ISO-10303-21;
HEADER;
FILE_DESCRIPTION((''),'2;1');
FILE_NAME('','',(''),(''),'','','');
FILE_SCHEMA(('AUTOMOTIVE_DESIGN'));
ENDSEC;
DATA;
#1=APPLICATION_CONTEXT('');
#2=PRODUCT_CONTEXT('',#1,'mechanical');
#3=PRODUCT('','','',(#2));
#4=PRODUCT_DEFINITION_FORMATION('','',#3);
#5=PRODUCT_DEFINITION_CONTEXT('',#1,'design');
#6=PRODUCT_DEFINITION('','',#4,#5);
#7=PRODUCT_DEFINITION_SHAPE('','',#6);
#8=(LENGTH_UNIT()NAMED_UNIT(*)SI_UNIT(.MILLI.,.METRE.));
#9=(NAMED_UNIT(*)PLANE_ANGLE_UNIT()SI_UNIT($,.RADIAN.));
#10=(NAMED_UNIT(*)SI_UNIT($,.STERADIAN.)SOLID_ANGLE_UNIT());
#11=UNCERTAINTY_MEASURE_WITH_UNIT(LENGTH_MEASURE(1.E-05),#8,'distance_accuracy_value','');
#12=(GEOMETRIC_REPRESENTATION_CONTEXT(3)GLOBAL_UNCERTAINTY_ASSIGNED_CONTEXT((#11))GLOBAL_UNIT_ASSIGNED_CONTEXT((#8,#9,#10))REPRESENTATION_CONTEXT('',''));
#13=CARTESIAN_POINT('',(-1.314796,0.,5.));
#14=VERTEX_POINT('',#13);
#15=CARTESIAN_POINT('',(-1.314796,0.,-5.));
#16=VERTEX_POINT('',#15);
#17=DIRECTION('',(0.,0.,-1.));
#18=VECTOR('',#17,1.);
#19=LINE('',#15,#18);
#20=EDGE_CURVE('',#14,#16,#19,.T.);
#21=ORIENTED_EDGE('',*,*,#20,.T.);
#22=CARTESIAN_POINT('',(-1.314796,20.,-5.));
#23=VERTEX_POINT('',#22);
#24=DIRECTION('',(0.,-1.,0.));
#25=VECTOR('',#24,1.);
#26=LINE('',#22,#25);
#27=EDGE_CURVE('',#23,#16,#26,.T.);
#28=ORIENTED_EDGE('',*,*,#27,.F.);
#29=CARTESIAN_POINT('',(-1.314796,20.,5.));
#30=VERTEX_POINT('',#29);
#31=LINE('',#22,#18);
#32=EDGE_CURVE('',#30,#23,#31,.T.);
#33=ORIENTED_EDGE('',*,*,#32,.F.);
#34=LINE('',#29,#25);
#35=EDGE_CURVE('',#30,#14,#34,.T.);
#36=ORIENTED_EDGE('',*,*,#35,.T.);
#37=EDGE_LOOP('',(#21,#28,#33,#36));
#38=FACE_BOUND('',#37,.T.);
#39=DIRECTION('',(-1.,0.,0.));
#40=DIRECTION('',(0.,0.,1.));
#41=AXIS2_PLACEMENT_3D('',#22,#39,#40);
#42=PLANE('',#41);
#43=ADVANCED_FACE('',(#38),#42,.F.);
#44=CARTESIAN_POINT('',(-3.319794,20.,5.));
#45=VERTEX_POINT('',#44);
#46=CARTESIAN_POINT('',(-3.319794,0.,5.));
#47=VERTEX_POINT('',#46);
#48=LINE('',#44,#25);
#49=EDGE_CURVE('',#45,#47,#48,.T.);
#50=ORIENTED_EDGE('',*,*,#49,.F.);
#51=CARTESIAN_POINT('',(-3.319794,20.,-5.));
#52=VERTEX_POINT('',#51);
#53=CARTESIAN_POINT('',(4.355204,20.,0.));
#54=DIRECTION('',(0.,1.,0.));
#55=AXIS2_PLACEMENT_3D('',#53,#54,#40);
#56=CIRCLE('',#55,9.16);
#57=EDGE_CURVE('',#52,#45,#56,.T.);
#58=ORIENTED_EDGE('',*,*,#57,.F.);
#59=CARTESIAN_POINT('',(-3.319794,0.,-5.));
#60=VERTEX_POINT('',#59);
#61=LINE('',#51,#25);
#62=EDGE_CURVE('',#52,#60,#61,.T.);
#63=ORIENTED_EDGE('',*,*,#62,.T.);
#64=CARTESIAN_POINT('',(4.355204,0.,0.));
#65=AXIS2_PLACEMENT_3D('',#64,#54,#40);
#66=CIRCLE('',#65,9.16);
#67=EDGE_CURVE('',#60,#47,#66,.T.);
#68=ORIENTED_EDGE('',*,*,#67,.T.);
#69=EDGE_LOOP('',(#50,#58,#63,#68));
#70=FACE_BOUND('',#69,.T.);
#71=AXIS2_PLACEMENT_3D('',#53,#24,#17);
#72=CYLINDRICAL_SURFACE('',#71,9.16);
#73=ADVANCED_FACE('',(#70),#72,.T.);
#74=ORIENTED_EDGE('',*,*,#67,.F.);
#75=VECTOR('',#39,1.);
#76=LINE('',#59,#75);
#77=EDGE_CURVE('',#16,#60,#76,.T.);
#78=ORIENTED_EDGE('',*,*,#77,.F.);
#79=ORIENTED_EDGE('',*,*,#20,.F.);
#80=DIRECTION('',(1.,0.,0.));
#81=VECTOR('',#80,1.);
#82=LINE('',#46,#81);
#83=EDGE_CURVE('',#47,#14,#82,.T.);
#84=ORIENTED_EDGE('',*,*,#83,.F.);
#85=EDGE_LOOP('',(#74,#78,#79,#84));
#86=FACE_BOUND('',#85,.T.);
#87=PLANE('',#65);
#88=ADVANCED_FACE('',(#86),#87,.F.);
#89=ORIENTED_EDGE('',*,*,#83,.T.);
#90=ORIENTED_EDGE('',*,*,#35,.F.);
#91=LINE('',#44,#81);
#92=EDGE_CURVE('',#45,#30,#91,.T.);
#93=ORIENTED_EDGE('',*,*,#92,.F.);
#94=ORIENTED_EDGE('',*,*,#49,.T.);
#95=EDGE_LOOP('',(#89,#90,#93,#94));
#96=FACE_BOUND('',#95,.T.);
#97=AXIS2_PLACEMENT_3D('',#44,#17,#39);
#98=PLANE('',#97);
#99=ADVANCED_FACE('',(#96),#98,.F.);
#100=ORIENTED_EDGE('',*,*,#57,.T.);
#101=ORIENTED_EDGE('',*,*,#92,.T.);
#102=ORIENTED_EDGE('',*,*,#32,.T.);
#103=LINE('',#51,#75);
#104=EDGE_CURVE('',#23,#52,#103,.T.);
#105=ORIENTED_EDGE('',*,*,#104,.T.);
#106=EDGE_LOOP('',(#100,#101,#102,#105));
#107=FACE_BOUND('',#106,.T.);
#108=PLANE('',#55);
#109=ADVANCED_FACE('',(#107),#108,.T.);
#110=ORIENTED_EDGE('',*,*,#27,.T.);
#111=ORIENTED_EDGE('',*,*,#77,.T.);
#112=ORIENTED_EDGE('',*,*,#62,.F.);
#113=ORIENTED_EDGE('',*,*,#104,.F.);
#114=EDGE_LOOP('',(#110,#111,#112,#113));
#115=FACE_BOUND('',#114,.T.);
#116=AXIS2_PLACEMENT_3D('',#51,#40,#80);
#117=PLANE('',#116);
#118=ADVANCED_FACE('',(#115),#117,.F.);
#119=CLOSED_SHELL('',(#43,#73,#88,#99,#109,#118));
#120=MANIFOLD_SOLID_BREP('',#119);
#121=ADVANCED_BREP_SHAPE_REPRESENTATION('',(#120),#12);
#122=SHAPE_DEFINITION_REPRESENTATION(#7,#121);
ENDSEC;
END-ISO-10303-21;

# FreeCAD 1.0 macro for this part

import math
import FreeCAD as App
import Part
import Sketcher

V = App.Vector

doc = App.newDocument("Part")
body = doc.addObject("PartDesign::Body", "Body")

# Sketch on XZ plane
sketch1 = doc.addObject("Sketcher::SketchObject", "Sketch")
body.addObject(sketch1)
sketch1.AttachmentSupport = (doc.XZ_Plane, [""])
sketch1.MapMode = "FlatFace"
sketch1.addGeometry([
    Part.LineSegment(V(-1.3, -5, 0), V(-3.3, -5, 0)),
    Part.ArcOfCircle(Part.Circle(V(4.4, 0, 0), V(0, 0, 1), 9.2), math.radians(147), math.radians(213)),
    Part.LineSegment(V(-3.3, 5, 0), V(-1.3, 5, 0)),
    Part.LineSegment(V(-1.3, 5, 0), V(-1.3, -5, 0)),
], False)
sketch1.addConstraint([
    Sketcher.Constraint("Coincident", 0, 2, 1, 2),
    Sketcher.Constraint("Coincident", 1, 1, 2, 1),
    Sketcher.Constraint("Coincident", 2, 2, 3, 1),
    Sketcher.Constraint("Coincident", 3, 2, 0, 1),
    Sketcher.Constraint("Horizontal", 0),
    Sketcher.Constraint("Horizontal", 2),
    Sketcher.Constraint("Vertical", 3),
    Sketcher.Constraint("Symmetric", 0, 2, 1, 1, -1),
    Sketcher.Constraint("DistanceY", 3, 2, 3, 1, 10.0),
    Sketcher.Constraint("Radius", 1, 9.16),
    Sketcher.Constraint("DistanceX", 0, 2, 0, 1, 2.004998),
    Sketcher.Constraint("DistanceX", -1, 1, 1, 3, 4.355204),
])
pad1 = doc.addObject("PartDesign::Pad", "Pad")
body.addObject(pad1)
pad1.Profile = sketch1
pad1.Length = 20
pad1.Reversed = True

doc.recompute()
